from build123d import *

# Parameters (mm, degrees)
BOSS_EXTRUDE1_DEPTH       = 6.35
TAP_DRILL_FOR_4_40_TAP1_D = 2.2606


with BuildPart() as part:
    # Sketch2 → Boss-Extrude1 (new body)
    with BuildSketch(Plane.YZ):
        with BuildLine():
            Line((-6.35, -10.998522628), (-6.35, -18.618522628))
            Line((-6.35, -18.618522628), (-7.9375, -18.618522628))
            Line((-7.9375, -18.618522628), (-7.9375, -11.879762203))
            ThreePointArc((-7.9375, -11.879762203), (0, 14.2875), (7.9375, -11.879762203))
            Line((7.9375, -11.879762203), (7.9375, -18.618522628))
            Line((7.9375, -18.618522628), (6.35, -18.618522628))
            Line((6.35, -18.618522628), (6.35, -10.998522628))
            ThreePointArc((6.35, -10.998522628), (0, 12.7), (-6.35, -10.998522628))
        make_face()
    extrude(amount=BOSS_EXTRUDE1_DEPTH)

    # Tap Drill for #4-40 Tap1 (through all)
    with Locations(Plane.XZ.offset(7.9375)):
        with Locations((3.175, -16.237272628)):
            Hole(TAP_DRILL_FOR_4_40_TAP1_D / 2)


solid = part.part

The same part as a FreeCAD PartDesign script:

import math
import FreeCAD as App
import Part
import Sketcher

V = App.Vector
Q = App.Units.Quantity

doc = App.newDocument("Part")
body = doc.addObject("PartDesign::Body", "Body")

sketch1 = body.newObject("Sketcher::SketchObject", "Sketch")
sketch1.AttachmentSupport = (doc.getObject("YZ_Plane"), [""])
sketch1.MapMode = "FlatFace"
sketch1.addGeometry([
    Part.LineSegment(V(-6.3, -18.6, 0), V(-6.3, -11, 0)),
    Part.ArcOfCircle(Part.Circle(V(0, 0, 0), V(0, 0, 1), 12.7), math.radians(-60), math.radians(240)),
    Part.LineSegment(V(6.3, -11, 0), V(6.3, -18.6, 0)),
    Part.LineSegment(V(6.3, -18.6, 0), V(7.9, -18.6, 0)),
    Part.LineSegment(V(7.9, -18.6, 0), V(7.9, -11.9, 0)),
    Part.ArcOfCircle(Part.Circle(V(0, 0, 0), V(0, 0, 1), 14.3), math.radians(-56), math.radians(236)),
    Part.LineSegment(V(-7.9, -11.9, 0), V(-7.9, -18.6, 0)),
    Part.LineSegment(V(-7.9, -18.6, 0), V(-6.3, -18.6, 0)),
], False)
sketch1.addConstraint([
    Sketcher.Constraint("Coincident", 0, 2, 1, 2),
    Sketcher.Constraint("Coincident", 1, 1, 2, 1),
    Sketcher.Constraint("Coincident", 2, 2, 3, 1),
    Sketcher.Constraint("Coincident", 3, 2, 4, 1),
    Sketcher.Constraint("Coincident", 4, 2, 5, 1),
    Sketcher.Constraint("Coincident", 5, 2, 6, 1),
    Sketcher.Constraint("Coincident", 6, 2, 7, 1),
    Sketcher.Constraint("Coincident", 7, 2, 0, 1),
    Sketcher.Constraint("Vertical", 0),
    Sketcher.Constraint("Vertical", 2),
    Sketcher.Constraint("Horizontal", 3),
    Sketcher.Constraint("Vertical", 4),
    Sketcher.Constraint("Vertical", 6),
    Sketcher.Constraint("Horizontal", 7),
    Sketcher.Constraint("Coincident", 1, 3, -1, 1),
    Sketcher.Constraint("Coincident", 5, 3, -1, 1),
    Sketcher.Constraint("Symmetric", 3, 2, 6, 2, -2),
    Sketcher.Constraint("Horizontal", 0, 2, 1, 1),
    Sketcher.Constraint("Radius", 1, Q("0.5 in")),
    Sketcher.Constraint("DistanceY", 0, 1, 0, 2, Q("0.3 in")),
    Sketcher.Constraint("Radius", 5, Q("0.5625 in")),
    Sketcher.Constraint("DistanceX", 0, 2, 1, 1, Q("0.5 in")),
    Sketcher.Constraint("DistanceX", 3, 1, 3, 2, Q("0.0625 in")),
])
pad1 = body.newObject("PartDesign::Pad", "Pad")
pad1.Profile = sketch1
pad1.Length = Q("0.25 in")

sketch2 = body.newObject("Sketcher::SketchObject", "Sketch001")
sketch2.AttachmentSupport = (doc.getObject("XZ_Plane"), [""])
sketch2.MapMode = "FlatFace"
sketch2.AttachmentOffset = App.Placement(V(0, 0, 0.3125 * 25.4), App.Rotation())
sketch2.addGeometry(Part.Circle(V(3.2, -16.2, 0), V(0, 0, 1), 1.1), False)
sketch2.addConstraint([
    Sketcher.Constraint("Diameter", 0, Q("0.089 in")),
    Sketcher.Constraint("DistanceX", -1, 1, 0, 3, Q("0.125 in")),
    Sketcher.Constraint("DistanceY", 0, 3, -1, 1, 16.237273),
])
doc.recompute()
hole = body.newObject("PartDesign::Hole", "Hole")
hole.Profile = sketch2
hole.ThreadType = "None"
hole.Diameter = Q("0.089 in")
hole.DepthType = "ThroughAll"

doc.recompute()
